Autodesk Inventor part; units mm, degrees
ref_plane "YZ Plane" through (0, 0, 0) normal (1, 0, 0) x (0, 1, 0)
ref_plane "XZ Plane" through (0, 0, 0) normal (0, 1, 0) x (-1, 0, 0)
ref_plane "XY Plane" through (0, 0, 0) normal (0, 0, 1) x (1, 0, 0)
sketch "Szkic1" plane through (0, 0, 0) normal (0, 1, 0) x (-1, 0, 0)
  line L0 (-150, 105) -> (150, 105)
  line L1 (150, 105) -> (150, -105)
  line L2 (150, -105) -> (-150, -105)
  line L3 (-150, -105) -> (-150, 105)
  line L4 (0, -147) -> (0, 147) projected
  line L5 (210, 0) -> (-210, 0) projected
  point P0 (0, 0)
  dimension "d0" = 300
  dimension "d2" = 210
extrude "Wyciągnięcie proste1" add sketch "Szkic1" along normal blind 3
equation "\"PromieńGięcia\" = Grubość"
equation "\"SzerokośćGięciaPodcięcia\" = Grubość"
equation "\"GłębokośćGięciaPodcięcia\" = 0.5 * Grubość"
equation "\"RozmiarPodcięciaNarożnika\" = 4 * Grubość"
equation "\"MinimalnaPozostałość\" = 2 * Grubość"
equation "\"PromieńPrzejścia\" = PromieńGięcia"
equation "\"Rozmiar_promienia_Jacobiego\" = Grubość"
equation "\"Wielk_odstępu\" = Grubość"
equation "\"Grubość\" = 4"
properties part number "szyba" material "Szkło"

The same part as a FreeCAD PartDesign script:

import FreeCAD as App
import Part
import Sketcher
Q = App.Units.Quantity


def add_polygon(sketch, points):
    """Adds a closed chain of lines whose ends are joined by coincident constraints."""
    first, n = sketch.GeometryCount, len(points)
    for a, b in zip(points, points[1:] + points[:1]):
        sketch.addGeometry(Part.LineSegment(App.Vector(*a, 0), App.Vector(*b, 0)), False)
    for i in range(n):
        sketch.addConstraint(Sketcher.Constraint("Coincident", first + i, 2, first + (i + 1) % n, 1))

doc = App.newDocument("Part")
body = doc.addObject("PartDesign::Body", "Body")

# Sketch on XZ plane
sketch1 = doc.addObject("Sketcher::SketchObject", "Sketch")
body.addObject(sketch1)
sketch1.AttachmentSupport = (doc.XZ_Plane, [""])
sketch1.MapMode = "FlatFace"
add_polygon(sketch1, [(150, 105), (150, -105), (-150, -105), (-150, 105)])  # lines 0-3
sketch1.addConstraint(Sketcher.Constraint("Vertical", 0))
sketch1.addConstraint(Sketcher.Constraint("Horizontal", 1))
sketch1.addConstraint(Sketcher.Constraint("Vertical", 2))
sketch1.addConstraint(Sketcher.Constraint("Horizontal", 3))
sketch1.addConstraint(Sketcher.Constraint("Symmetric", 0, 2, 2, 2, -1, 1))
sketch1.addConstraint(Sketcher.Constraint("DistanceX", 1, 2, 1, 1, Q("300 mm")))
sketch1.addConstraint(Sketcher.Constraint("DistanceY", 0, 2, 0, 1, Q("210 mm")))
pad1 = doc.addObject("PartDesign::Pad", "Pad")
body.addObject(pad1)
pad1.Profile = sketch1
pad1.Length = 3
pad1.Reversed = True

doc.recompute()
